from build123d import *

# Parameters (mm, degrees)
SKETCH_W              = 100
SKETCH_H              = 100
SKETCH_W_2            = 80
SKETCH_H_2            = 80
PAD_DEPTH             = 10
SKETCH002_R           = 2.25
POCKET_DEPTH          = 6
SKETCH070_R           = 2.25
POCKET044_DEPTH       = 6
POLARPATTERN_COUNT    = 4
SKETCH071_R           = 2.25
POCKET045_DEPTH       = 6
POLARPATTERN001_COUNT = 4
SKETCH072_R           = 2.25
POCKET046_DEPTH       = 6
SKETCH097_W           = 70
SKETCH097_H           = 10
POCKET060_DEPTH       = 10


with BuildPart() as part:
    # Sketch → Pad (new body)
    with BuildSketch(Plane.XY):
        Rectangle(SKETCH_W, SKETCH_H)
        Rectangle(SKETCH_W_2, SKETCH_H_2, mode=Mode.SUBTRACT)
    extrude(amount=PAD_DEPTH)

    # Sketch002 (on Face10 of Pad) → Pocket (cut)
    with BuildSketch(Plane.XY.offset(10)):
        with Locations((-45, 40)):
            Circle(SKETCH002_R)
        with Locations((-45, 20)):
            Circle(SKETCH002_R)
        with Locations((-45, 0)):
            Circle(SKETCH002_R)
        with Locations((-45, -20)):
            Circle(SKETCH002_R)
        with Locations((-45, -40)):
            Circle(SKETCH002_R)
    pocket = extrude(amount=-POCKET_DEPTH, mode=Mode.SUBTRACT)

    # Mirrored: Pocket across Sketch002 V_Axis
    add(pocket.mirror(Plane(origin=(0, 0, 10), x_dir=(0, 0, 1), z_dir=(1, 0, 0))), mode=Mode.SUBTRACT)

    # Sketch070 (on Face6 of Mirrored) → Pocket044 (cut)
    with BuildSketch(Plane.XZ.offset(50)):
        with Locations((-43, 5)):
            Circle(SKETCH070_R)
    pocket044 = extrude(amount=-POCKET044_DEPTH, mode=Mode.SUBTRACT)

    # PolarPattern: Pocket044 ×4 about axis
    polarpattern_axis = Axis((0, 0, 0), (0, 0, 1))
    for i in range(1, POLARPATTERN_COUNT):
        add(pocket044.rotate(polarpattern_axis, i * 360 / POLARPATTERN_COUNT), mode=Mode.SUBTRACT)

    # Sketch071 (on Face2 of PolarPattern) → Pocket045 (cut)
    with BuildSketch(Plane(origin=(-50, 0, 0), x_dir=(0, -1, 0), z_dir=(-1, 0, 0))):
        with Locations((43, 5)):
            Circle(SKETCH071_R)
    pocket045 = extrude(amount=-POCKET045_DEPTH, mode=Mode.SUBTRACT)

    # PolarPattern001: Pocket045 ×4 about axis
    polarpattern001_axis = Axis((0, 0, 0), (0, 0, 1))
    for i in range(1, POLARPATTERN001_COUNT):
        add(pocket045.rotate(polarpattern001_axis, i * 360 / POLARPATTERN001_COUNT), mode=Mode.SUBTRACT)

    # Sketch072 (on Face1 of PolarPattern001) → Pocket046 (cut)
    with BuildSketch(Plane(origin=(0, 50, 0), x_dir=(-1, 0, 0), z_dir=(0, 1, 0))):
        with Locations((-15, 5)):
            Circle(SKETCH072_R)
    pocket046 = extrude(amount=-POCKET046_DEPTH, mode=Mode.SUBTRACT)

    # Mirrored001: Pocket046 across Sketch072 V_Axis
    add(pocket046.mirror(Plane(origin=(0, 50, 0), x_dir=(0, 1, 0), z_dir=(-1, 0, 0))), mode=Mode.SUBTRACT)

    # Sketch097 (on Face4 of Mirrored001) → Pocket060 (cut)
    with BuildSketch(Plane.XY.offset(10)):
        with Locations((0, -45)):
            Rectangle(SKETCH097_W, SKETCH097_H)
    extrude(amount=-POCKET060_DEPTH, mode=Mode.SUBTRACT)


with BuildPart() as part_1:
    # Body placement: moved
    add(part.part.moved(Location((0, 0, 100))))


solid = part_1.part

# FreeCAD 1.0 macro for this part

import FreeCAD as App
import Part
import Sketcher
from FreeCAD import Vector
Q = App.Units.Quantity

doc = App.newDocument("Part")
body = doc.addObject("PartDesign::Body", "Body")

sketch1 = body.newObject("Sketcher::SketchObject", "Sketch")
sketch1.AttachmentSupport = (doc.getObject("XY_Plane"), [""])
sketch1.MapMode = "FlatFace"
sketch1.addGeometry(Part.LineSegment(Vector(-50, 50, 0), Vector(-50, -50, 0)), False)
sketch1.addGeometry(Part.LineSegment(Vector(-50, -50, 0), Vector(50, -50, 0)), False)
sketch1.addGeometry(Part.LineSegment(Vector(50, -50, 0), Vector(50, 50, 0)), False)
sketch1.addGeometry(Part.LineSegment(Vector(50, 50, 0), Vector(-50, 50, 0)), False)
sketch1.addGeometry(Part.LineSegment(Vector(40, -40, 0), Vector(-40, -40, 0)), False)
sketch1.addGeometry(Part.LineSegment(Vector(-40, -40, 0), Vector(-40, 40, 0)), False)
sketch1.addGeometry(Part.LineSegment(Vector(-40, 40, 0), Vector(40, 40, 0)), False)
sketch1.addGeometry(Part.LineSegment(Vector(40, 40, 0), Vector(40, -40, 0)), False)
sketch1.addConstraint(Sketcher.Constraint("Coincident", 0, 2, 1, 1))
sketch1.addConstraint(Sketcher.Constraint("Coincident", 1, 2, 2, 1))
sketch1.addConstraint(Sketcher.Constraint("Coincident", 2, 2, 3, 1))
sketch1.addConstraint(Sketcher.Constraint("Coincident", 3, 2, 0, 1))
sketch1.addConstraint(Sketcher.Constraint("Coincident", 4, 2, 5, 1))
sketch1.addConstraint(Sketcher.Constraint("Coincident", 5, 2, 6, 1))
sketch1.addConstraint(Sketcher.Constraint("Coincident", 6, 2, 7, 1))
sketch1.addConstraint(Sketcher.Constraint("Coincident", 7, 2, 4, 1))
sketch1.addConstraint(Sketcher.Constraint("Vertical", 0))
sketch1.addConstraint(Sketcher.Constraint("Horizontal", 1))
sketch1.addConstraint(Sketcher.Constraint("Vertical", 2))
sketch1.addConstraint(Sketcher.Constraint("Horizontal", 3))
sketch1.addConstraint(Sketcher.Constraint("Horizontal", 4))
sketch1.addConstraint(Sketcher.Constraint("Vertical", 5))
sketch1.addConstraint(Sketcher.Constraint("Horizontal", 6))
sketch1.addConstraint(Sketcher.Constraint("Vertical", 7))
sketch1.addConstraint(Sketcher.Constraint("Symmetric", 0, 2, 2, 2, -1, 1))
sketch1.addConstraint(Sketcher.Constraint("Symmetric", 4, 2, 6, 2, -1, 1))
sketch1.addConstraint(Sketcher.Constraint("Equal", 3, 0))
sketch1.addConstraint(Sketcher.Constraint("Equal", 6, 5))
sketch1.addConstraint(Sketcher.Constraint("DistanceX", 1, 1, 1, 2, Q("100 mm")))
sketch1.addConstraint(Sketcher.Constraint("DistanceX", 4, 2, 4, 1, Q("80 mm")))
pad1 = body.newObject("PartDesign::Pad", "Pad")
pad1.Profile = sketch1
pad1.Length = 10

sketch2 = body.newObject("Sketcher::SketchObject", "Sketch001")
sketch2.AttachmentSupport = (doc.getObject("XY_Plane"), [""])
sketch2.MapMode = "FlatFace"
sketch2.AttachmentOffset = App.Placement(Vector(0, 0, 10), App.Rotation())
sketch2.addGeometry(Part.Circle(Vector(-45, 40, 0), Vector(0, 0, 1), 2.2), False)
sketch2.addGeometry(Part.Circle(Vector(-45, 20, 0), Vector(0, 0, 1), 2.2), False)
sketch2.addGeometry(Part.Circle(Vector(-45, 0, 0), Vector(0, 0, 1), 2.2), False)
sketch2.addGeometry(Part.Circle(Vector(-45, -20, 0), Vector(0, 0, 1), 2.2), False)
sketch2.addGeometry(Part.Circle(Vector(-45, -40, 0), Vector(0, 0, 1), 2.2), False)
sketch2.addConstraint(Sketcher.Constraint("Equal", 0, 1))
sketch2.addConstraint(Sketcher.Constraint("Equal", 1, 2))
sketch2.addConstraint(Sketcher.Constraint("Equal", 2, 3))
sketch2.addConstraint(Sketcher.Constraint("Equal", 3, 4))
sketch2.addConstraint(Sketcher.Constraint("Symmetric", 1, 3, 3, 3, -1))
sketch2.addConstraint(Sketcher.Constraint("Symmetric", 0, 3, 4, 3, -1))
sketch2.addConstraint(Sketcher.Constraint("PointOnObject", 2, 3, -1))
sketch2.addConstraint(Sketcher.Constraint("Vertical", 0, 3, 1, 3))
sketch2.addConstraint(Sketcher.Constraint("Vertical", 1, 3, 2, 3))
sketch2.addConstraint(Sketcher.Constraint("Diameter", 0, Q("4.5 mm")))
sketch2.addConstraint(Sketcher.Constraint("DistanceX", 0, 3, -1, 1, Q("45 mm")))
sketch2.addConstraint(Sketcher.Constraint("DistanceY", -1, 1, 0, 3, Q("40 mm")))
sketch2.addConstraint(Sketcher.Constraint("DistanceY", -1, 1, 1, 3, Q("20 mm")))
pocket1 = body.newObject("PartDesign::Pocket", "Pocket")
pocket1.Profile = sketch2
pocket1.Length = 6
doc.recompute()

mirrored = body.newObject("PartDesign::Mirrored", "Mirrored")
mirrored.Originals = [pocket1]
mirrored.MirrorPlane = (doc.getObject("YZ_Plane"), [""])
body.Tip = mirrored

sketch3 = body.newObject("Sketcher::SketchObject", "Sketch002")
sketch3.AttachmentSupport = (doc.getObject("XZ_Plane"), [""])
sketch3.MapMode = "FlatFace"
sketch3.AttachmentOffset = App.Placement(Vector(0, 0, 50), App.Rotation())
sketch3.addGeometry(Part.Circle(Vector(-43, 5, 0), Vector(0, 0, 1), 2.2), False)
sketch3.addConstraint(Sketcher.Constraint("Diameter", 0, Q("4.5 mm")))
sketch3.addConstraint(Sketcher.Constraint("DistanceX", 0, 3, -1, 1, Q("43 mm")))
sketch3.addConstraint(Sketcher.Constraint("DistanceY", -1, 1, 0, 3, Q("5 mm")))
pocket2 = body.newObject("PartDesign::Pocket", "Pocket001")
pocket2.Profile = sketch3
pocket2.Length = 6
doc.recompute()

polarpattern = body.newObject("PartDesign::PolarPattern", "PolarPattern")
polarpattern.Originals = [pocket2]
polarpattern.Axis = (doc.getObject("Z_Axis"), [""])
polarpattern.Angle = 360
polarpattern.Occurrences = 4
body.Tip = polarpattern

sketch4 = body.newObject("Sketcher::SketchObject", "Sketch003")
sketch4.AttachmentSupport = (doc.getObject("YZ_Plane"), [""])
sketch4.MapMode = "FlatFace"
sketch4.AttachmentOffset = App.Placement(Vector(0, 0, -50), App.Rotation())
sketch4.addGeometry(Part.Circle(Vector(-43, 5, 0), Vector(0, 0, 1), 2.2), False)
sketch4.addConstraint(Sketcher.Constraint("Diameter", 0, Q("4.5 mm")))
sketch4.addConstraint(Sketcher.Constraint("DistanceX", 0, 3, -1, 1, Q("43 mm")))
sketch4.addConstraint(Sketcher.Constraint("DistanceY", -1, 1, 0, 3, Q("5 mm")))
pocket3 = body.newObject("PartDesign::Pocket", "Pocket002")
pocket3.Profile = sketch4
pocket3.Length = 6
pocket3.Reversed = True
doc.recompute()

polarpattern2 = body.newObject("PartDesign::PolarPattern", "PolarPattern001")
polarpattern2.Originals = [pocket3]
polarpattern2.Axis = (doc.getObject("Z_Axis"), [""])
polarpattern2.Angle = 360
polarpattern2.Occurrences = 4
body.Tip = polarpattern2

sketch5 = body.newObject("Sketcher::SketchObject", "Sketch004")
sketch5.AttachmentSupport = (doc.getObject("XZ_Plane"), [""])
sketch5.MapMode = "FlatFace"
sketch5.AttachmentOffset = App.Placement(Vector(0, 0, -50), App.Rotation())
sketch5.addGeometry(Part.Circle(Vector(15, 5, 0), Vector(0, 0, 1), 2.2), False)
sketch5.addConstraint(Sketcher.Constraint("Diameter", 0, Q("4.5 mm")))
sketch5.addConstraint(Sketcher.Constraint("DistanceX", -1, 1, 0, 3, Q("15 mm")))
sketch5.addConstraint(Sketcher.Constraint("DistanceY", -1, 1, 0, 3, Q("5 mm")))
pocket4 = body.newObject("PartDesign::Pocket", "Pocket003")
pocket4.Profile = sketch5
pocket4.Length = 6
pocket4.Reversed = True
doc.recompute()

mirrored2 = body.newObject("PartDesign::Mirrored", "Mirrored001")
mirrored2.Originals = [pocket4]
mirrored2.MirrorPlane = (doc.getObject("YZ_Plane"), [""])
body.Tip = mirrored2

sketch6 = body.newObject("Sketcher::SketchObject", "Sketch005")
sketch6.AttachmentSupport = (doc.getObject("XY_Plane"), [""])
sketch6.MapMode = "FlatFace"
sketch6.AttachmentOffset = App.Placement(Vector(0, 0, 10), App.Rotation())
sketch6.addGeometry(Part.LineSegment(Vector(-35, -40, 0), Vector(-35, -50, 0)), False)
sketch6.addGeometry(Part.LineSegment(Vector(-35, -50, 0), Vector(35, -50, 0)), False)
sketch6.addGeometry(Part.LineSegment(Vector(35, -50, 0), Vector(35, -40, 0)), False)
sketch6.addGeometry(Part.LineSegment(Vector(35, -40, 0), Vector(-35, -40, 0)), False)
sketch6.addConstraint(Sketcher.Constraint("Coincident", 0, 2, 1, 1))
sketch6.addConstraint(Sketcher.Constraint("Coincident", 1, 2, 2, 1))
sketch6.addConstraint(Sketcher.Constraint("Coincident", 2, 2, 3, 1))
sketch6.addConstraint(Sketcher.Constraint("Coincident", 3, 2, 0, 1))
sketch6.addConstraint(Sketcher.Constraint("Vertical", 0))
sketch6.addConstraint(Sketcher.Constraint("Horizontal", 1))
sketch6.addConstraint(Sketcher.Constraint("Vertical", 2))
sketch6.addConstraint(Sketcher.Constraint("Horizontal", 3))
sketch6.addConstraint(Sketcher.Constraint("DistanceX", 1, 1, 1, 2, Q("70 mm")))
sketch6.addConstraint(Sketcher.Constraint("DistanceY", 0, 2, 0, 1, Q("10 mm")))
sketch6.addConstraint(Sketcher.Constraint("DistanceX", 0, 2, -1, 1, Q("35 mm")))
sketch6.addConstraint(Sketcher.Constraint("DistanceY", 0, 2, -1, 1, Q("50 mm")))
pocket5 = body.newObject("PartDesign::Pocket", "Pocket004")
pocket5.Profile = sketch6
pocket5.Length = 10
body2 = doc.addObject("PartDesign::Body", "Body001")
doc.recompute()

body.Placement = App.Placement(Vector(0, 0, 100), App.Rotation(Vector(0, 0, 1), 0))
boolean = body2.newObject("PartDesign::Boolean", "Boolean")
boolean.Type = "Fuse"
boolean.addObjects([body])

doc.recompute()
